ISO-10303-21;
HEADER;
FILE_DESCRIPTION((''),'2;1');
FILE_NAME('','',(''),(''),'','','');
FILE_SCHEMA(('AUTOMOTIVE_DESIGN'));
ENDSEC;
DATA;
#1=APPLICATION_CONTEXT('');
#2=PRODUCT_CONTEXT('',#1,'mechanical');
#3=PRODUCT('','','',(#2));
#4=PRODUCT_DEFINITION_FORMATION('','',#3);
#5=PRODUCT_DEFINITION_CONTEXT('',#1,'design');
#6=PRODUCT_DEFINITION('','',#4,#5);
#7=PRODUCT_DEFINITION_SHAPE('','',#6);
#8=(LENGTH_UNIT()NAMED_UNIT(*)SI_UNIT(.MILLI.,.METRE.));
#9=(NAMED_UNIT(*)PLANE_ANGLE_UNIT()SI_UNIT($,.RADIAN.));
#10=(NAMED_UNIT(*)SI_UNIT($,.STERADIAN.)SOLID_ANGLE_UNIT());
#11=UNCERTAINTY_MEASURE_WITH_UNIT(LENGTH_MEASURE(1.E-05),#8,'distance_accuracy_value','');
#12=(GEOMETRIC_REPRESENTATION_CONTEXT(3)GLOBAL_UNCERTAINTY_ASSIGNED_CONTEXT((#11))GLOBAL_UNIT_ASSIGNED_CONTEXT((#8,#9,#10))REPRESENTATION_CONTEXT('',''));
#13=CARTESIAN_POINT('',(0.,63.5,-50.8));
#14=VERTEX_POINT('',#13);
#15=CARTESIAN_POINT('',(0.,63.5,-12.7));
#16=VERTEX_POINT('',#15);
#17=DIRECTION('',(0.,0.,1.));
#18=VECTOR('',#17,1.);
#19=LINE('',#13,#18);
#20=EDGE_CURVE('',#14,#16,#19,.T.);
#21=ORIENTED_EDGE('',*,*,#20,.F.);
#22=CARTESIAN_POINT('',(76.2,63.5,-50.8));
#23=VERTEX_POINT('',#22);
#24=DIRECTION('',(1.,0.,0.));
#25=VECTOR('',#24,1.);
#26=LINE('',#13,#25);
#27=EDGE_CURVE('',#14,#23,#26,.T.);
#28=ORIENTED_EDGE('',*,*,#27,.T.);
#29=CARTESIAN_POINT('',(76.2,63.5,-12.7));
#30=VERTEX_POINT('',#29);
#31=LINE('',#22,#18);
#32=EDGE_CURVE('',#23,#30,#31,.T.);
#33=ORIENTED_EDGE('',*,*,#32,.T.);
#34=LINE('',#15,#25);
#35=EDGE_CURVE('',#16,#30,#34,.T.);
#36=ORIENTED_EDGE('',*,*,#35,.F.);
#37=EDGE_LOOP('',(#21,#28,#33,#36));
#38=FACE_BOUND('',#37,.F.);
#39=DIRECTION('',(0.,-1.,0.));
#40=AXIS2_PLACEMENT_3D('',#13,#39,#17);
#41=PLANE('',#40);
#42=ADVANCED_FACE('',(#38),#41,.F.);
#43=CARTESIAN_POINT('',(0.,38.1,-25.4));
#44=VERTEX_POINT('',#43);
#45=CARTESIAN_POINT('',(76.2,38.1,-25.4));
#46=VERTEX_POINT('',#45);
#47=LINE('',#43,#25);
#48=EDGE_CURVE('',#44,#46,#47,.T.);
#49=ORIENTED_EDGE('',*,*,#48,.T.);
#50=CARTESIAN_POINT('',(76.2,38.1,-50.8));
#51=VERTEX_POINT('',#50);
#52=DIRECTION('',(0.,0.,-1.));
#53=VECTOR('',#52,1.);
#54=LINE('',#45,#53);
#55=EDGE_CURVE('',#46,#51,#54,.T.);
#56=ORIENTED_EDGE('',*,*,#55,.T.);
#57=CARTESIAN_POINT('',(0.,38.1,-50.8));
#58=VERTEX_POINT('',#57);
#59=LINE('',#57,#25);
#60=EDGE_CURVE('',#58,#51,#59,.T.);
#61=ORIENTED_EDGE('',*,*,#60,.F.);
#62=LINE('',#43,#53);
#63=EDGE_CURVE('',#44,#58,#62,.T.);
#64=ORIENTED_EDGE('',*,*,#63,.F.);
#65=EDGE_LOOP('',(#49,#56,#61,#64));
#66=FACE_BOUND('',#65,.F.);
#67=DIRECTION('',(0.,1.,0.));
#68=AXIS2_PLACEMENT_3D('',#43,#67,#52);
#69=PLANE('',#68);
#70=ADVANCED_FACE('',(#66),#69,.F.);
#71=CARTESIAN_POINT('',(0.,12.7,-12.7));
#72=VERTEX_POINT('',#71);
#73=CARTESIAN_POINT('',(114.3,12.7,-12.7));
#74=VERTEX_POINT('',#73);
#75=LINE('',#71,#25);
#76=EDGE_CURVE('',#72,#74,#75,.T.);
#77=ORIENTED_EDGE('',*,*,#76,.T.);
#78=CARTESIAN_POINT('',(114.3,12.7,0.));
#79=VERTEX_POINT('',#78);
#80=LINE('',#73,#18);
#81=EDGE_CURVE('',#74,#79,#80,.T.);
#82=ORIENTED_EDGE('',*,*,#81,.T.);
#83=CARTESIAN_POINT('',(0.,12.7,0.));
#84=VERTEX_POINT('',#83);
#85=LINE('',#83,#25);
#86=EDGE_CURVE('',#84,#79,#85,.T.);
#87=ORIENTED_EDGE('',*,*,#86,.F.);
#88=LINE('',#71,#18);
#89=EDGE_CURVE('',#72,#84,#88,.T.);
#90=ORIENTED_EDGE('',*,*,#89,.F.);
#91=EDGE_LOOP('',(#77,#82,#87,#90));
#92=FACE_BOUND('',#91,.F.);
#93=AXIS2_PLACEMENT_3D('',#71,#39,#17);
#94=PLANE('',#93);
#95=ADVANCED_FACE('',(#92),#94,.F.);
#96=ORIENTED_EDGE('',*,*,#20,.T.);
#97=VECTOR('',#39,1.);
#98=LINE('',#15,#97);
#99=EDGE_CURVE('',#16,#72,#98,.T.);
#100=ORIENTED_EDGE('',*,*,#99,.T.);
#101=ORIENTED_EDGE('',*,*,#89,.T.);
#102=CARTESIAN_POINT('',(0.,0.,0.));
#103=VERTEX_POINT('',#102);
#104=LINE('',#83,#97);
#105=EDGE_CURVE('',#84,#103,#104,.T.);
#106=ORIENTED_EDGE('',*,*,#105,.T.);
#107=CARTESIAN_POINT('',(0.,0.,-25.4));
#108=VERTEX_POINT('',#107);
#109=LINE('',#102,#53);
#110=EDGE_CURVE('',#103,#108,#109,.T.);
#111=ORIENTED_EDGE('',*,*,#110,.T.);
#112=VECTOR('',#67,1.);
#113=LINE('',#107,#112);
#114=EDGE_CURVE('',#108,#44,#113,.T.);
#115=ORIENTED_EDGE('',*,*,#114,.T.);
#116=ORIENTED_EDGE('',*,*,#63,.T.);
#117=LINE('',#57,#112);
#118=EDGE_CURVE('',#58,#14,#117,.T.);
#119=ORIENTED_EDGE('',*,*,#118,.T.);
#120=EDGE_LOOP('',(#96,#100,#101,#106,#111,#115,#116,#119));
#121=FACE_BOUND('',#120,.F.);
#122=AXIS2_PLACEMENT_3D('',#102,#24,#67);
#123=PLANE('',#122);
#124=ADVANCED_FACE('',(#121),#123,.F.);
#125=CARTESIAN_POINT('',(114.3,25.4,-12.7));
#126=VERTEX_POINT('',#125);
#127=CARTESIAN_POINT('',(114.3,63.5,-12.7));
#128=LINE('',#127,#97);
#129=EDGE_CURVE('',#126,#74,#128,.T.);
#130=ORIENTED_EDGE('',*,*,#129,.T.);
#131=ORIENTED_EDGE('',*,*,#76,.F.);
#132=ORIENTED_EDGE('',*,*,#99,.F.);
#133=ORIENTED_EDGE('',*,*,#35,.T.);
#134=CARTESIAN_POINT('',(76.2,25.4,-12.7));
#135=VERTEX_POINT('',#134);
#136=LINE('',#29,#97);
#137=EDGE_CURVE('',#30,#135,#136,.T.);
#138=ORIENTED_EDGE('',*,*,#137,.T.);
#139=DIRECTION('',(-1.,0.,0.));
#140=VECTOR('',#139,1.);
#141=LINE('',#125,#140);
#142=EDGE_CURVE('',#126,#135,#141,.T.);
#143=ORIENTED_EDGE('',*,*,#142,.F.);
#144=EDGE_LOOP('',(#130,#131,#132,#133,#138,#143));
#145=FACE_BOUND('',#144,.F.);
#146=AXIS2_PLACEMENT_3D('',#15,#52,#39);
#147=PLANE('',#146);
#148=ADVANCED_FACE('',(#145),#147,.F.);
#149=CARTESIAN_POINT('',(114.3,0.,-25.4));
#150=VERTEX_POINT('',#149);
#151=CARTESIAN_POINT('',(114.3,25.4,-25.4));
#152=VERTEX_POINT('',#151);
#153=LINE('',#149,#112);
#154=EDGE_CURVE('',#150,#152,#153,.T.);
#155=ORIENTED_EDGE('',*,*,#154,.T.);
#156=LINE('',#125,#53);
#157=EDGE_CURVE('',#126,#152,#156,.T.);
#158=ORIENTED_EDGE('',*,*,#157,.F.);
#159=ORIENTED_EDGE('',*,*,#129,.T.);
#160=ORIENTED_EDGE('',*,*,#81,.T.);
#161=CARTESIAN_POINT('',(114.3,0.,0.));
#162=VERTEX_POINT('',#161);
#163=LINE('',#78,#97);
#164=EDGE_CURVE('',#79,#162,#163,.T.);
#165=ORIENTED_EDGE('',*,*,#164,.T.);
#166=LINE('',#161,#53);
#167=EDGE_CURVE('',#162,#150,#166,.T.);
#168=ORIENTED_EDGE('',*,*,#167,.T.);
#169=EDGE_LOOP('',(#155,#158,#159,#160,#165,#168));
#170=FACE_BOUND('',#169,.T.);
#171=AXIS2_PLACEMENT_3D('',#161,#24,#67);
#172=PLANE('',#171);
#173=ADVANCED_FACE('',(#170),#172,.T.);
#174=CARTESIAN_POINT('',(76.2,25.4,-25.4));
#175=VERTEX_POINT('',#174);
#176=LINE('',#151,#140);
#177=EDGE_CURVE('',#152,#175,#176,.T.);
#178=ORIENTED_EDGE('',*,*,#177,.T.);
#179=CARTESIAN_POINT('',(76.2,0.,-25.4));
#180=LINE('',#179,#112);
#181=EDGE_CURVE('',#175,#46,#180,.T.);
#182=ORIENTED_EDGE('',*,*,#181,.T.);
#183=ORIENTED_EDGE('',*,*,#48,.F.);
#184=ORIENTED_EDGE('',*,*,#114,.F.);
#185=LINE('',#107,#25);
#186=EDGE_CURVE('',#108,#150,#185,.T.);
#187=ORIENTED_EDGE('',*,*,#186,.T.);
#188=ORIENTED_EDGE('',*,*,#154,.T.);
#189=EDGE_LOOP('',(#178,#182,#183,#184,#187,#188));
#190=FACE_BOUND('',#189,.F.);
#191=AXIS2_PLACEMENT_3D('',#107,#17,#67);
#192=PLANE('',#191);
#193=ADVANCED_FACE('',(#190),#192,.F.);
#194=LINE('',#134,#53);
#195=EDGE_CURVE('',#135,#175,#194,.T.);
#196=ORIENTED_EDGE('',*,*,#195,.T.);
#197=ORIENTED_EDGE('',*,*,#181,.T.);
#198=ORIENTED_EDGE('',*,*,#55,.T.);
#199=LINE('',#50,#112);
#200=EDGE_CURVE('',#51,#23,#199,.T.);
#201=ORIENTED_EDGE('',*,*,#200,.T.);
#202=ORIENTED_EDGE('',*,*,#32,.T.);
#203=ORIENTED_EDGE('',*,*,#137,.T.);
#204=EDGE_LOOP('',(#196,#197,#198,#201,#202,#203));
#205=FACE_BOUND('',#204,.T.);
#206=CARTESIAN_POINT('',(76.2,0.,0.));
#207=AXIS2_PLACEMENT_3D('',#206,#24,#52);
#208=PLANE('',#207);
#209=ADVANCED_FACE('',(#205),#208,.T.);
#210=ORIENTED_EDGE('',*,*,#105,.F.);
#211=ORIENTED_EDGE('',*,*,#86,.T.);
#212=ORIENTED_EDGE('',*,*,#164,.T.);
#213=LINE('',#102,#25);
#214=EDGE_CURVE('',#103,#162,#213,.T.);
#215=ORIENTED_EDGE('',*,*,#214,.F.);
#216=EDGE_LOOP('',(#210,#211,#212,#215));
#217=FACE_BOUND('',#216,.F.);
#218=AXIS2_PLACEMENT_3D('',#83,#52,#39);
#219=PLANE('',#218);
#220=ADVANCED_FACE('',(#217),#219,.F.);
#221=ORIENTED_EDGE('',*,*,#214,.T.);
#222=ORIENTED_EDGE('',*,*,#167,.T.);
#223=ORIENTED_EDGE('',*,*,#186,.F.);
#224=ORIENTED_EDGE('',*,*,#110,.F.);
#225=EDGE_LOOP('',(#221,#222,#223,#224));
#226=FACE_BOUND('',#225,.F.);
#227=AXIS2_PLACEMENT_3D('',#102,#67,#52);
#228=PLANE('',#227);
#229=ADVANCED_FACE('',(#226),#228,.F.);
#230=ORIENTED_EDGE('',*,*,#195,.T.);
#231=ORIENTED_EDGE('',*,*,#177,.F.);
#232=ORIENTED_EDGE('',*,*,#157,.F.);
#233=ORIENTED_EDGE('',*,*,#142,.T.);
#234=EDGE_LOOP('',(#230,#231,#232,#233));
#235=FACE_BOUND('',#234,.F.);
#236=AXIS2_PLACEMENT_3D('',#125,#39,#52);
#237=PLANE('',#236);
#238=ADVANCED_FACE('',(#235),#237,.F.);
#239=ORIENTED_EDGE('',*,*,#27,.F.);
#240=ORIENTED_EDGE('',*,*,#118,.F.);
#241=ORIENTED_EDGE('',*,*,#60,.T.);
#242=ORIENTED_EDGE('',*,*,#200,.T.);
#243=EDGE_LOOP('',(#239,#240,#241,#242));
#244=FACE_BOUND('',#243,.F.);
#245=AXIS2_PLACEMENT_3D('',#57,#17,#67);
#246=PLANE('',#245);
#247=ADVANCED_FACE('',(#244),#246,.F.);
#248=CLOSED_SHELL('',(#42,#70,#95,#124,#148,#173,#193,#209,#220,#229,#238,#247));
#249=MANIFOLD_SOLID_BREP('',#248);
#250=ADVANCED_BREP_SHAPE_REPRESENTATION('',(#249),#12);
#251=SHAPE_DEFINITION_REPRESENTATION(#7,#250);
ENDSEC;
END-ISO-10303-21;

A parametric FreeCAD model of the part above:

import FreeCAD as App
import Part
import Sketcher

V = App.Vector
Q = App.Units.Quantity

doc = App.newDocument("Part")
body = doc.addObject("PartDesign::Body", "Body")

sketch1 = doc.addObject("Sketcher::SketchObject", "Sketch")
body.addObject(sketch1)
sketch1.AttachmentSupport = (doc.YZ_Plane, [""])
sketch1.MapMode = "FlatFace"
sketch1.addGeometry([
    Part.LineSegment(V(12.7, 0, 0), V(0, 0, 0)),
    Part.LineSegment(V(0, 0, 0), V(0, -25.4, 0)),
    Part.LineSegment(V(0, -25.4, 0), V(38.1, -25.4, 0)),
    Part.LineSegment(V(38.1, -25.4, 0), V(38.1, -50.8, 0)),
    Part.LineSegment(V(38.1, -50.8, 0), V(63.5, -50.8, 0)),
    Part.LineSegment(V(63.5, -50.8, 0), V(63.5, -12.7, 0)),
    Part.LineSegment(V(63.5, -12.7, 0), V(12.7, -12.7, 0)),
    Part.LineSegment(V(12.7, -12.7, 0), V(12.7, 0, 0)),
], False)
sketch1.addConstraint([
    Sketcher.Constraint("Coincident", 0, 2, 1, 1),
    Sketcher.Constraint("Coincident", 1, 2, 2, 1),
    Sketcher.Constraint("Coincident", 2, 2, 3, 1),
    Sketcher.Constraint("Coincident", 3, 2, 4, 1),
    Sketcher.Constraint("Coincident", 4, 2, 5, 1),
    Sketcher.Constraint("Coincident", 5, 2, 6, 1),
    Sketcher.Constraint("Coincident", 6, 2, 7, 1),
    Sketcher.Constraint("Coincident", 7, 2, 0, 1),
    Sketcher.Constraint("Horizontal", 0),
    Sketcher.Constraint("Vertical", 1),
    Sketcher.Constraint("Horizontal", 2),
    Sketcher.Constraint("Vertical", 3),
    Sketcher.Constraint("Horizontal", 4),
    Sketcher.Constraint("Vertical", 5),
    Sketcher.Constraint("Horizontal", 6),
    Sketcher.Constraint("Vertical", 7),
    Sketcher.Constraint("Coincident", 0, 2, -1, 1),
    Sketcher.Constraint("Equal", 4, 1),
    Sketcher.Constraint("Equal", 1, 3),
    Sketcher.Constraint("Equal", 2, 5),
    Sketcher.Constraint("Equal", 0, 7),
    Sketcher.Constraint("DistanceX", 4, 1, 4, 2, Q("1 in")),
    Sketcher.Constraint("DistanceX", 6, 2, 6, 1, Q("2 in")),
])
pad1 = doc.addObject("PartDesign::Pad", "Pad")
body.addObject(pad1)
pad1.Profile = sketch1
pad1.Length = Q("4.5 in")

sketch2 = doc.addObject("Sketcher::SketchObject", "Sketch001")
body.addObject(sketch2)
sketch2.AttachmentSupport = (doc.YZ_Plane, [""])
sketch2.MapMode = "FlatFace"
sketch2.AttachmentOffset = App.Placement(V(0, 0, 4.5 * 25.4), App.Rotation())
sketch2.addGeometry([
    Part.LineSegment(V(38.1, -25.4, 0), V(38.1, -50.8, 0)),
    Part.LineSegment(V(38.1, -50.8, 0), V(63.5, -50.8, 0)),
    Part.LineSegment(V(63.5, -50.8, 0), V(63.5, -12.7, 0)),
    Part.LineSegment(V(63.5, -12.7, 0), V(25.4, -12.7, 0)),
    Part.LineSegment(V(25.4, -12.7, 0), V(25.4, -25.4, 0)),
    Part.LineSegment(V(25.4, -25.4, 0), V(38.1, -25.4, 0)),
], False)
sketch2.addConstraint([
    Sketcher.Constraint("Coincident", 0, 2, 1, 1),
    Sketcher.Constraint("Coincident", 1, 2, 2, 1),
    Sketcher.Constraint("Coincident", 2, 2, 3, 1),
    Sketcher.Constraint("Coincident", 3, 2, 4, 1),
    Sketcher.Constraint("Coincident", 4, 2, 5, 1),
    Sketcher.Constraint("Coincident", 5, 2, 0, 1),
    Sketcher.Constraint("Vertical", 0),
    Sketcher.Constraint("Horizontal", 1),
    Sketcher.Constraint("Vertical", 2),
    Sketcher.Constraint("Horizontal", 3),
    Sketcher.Constraint("Vertical", 4),
    Sketcher.Constraint("Horizontal", 5),
    Sketcher.Constraint("Equal", 1, 0),
    Sketcher.Constraint("Equal", 3, 2),
    Sketcher.Constraint("DistanceX", 3, 2, 3, 1, Q("1.5 in")),
    Sketcher.Constraint("DistanceX", -1, 1, 0, 2, Q("1.5 in")),
    Sketcher.Constraint("DistanceX", 1, 1, 1, 2, Q("1 in")),
    Sketcher.Constraint("DistanceY", 0, 2, -1, 1, Q("2 in")),
])
pocket1 = doc.addObject("PartDesign::Pocket", "Pocket")
body.addObject(pocket1)
pocket1.Profile = sketch2
pocket1.Length = Q("1.5 in")

doc.recompute()
